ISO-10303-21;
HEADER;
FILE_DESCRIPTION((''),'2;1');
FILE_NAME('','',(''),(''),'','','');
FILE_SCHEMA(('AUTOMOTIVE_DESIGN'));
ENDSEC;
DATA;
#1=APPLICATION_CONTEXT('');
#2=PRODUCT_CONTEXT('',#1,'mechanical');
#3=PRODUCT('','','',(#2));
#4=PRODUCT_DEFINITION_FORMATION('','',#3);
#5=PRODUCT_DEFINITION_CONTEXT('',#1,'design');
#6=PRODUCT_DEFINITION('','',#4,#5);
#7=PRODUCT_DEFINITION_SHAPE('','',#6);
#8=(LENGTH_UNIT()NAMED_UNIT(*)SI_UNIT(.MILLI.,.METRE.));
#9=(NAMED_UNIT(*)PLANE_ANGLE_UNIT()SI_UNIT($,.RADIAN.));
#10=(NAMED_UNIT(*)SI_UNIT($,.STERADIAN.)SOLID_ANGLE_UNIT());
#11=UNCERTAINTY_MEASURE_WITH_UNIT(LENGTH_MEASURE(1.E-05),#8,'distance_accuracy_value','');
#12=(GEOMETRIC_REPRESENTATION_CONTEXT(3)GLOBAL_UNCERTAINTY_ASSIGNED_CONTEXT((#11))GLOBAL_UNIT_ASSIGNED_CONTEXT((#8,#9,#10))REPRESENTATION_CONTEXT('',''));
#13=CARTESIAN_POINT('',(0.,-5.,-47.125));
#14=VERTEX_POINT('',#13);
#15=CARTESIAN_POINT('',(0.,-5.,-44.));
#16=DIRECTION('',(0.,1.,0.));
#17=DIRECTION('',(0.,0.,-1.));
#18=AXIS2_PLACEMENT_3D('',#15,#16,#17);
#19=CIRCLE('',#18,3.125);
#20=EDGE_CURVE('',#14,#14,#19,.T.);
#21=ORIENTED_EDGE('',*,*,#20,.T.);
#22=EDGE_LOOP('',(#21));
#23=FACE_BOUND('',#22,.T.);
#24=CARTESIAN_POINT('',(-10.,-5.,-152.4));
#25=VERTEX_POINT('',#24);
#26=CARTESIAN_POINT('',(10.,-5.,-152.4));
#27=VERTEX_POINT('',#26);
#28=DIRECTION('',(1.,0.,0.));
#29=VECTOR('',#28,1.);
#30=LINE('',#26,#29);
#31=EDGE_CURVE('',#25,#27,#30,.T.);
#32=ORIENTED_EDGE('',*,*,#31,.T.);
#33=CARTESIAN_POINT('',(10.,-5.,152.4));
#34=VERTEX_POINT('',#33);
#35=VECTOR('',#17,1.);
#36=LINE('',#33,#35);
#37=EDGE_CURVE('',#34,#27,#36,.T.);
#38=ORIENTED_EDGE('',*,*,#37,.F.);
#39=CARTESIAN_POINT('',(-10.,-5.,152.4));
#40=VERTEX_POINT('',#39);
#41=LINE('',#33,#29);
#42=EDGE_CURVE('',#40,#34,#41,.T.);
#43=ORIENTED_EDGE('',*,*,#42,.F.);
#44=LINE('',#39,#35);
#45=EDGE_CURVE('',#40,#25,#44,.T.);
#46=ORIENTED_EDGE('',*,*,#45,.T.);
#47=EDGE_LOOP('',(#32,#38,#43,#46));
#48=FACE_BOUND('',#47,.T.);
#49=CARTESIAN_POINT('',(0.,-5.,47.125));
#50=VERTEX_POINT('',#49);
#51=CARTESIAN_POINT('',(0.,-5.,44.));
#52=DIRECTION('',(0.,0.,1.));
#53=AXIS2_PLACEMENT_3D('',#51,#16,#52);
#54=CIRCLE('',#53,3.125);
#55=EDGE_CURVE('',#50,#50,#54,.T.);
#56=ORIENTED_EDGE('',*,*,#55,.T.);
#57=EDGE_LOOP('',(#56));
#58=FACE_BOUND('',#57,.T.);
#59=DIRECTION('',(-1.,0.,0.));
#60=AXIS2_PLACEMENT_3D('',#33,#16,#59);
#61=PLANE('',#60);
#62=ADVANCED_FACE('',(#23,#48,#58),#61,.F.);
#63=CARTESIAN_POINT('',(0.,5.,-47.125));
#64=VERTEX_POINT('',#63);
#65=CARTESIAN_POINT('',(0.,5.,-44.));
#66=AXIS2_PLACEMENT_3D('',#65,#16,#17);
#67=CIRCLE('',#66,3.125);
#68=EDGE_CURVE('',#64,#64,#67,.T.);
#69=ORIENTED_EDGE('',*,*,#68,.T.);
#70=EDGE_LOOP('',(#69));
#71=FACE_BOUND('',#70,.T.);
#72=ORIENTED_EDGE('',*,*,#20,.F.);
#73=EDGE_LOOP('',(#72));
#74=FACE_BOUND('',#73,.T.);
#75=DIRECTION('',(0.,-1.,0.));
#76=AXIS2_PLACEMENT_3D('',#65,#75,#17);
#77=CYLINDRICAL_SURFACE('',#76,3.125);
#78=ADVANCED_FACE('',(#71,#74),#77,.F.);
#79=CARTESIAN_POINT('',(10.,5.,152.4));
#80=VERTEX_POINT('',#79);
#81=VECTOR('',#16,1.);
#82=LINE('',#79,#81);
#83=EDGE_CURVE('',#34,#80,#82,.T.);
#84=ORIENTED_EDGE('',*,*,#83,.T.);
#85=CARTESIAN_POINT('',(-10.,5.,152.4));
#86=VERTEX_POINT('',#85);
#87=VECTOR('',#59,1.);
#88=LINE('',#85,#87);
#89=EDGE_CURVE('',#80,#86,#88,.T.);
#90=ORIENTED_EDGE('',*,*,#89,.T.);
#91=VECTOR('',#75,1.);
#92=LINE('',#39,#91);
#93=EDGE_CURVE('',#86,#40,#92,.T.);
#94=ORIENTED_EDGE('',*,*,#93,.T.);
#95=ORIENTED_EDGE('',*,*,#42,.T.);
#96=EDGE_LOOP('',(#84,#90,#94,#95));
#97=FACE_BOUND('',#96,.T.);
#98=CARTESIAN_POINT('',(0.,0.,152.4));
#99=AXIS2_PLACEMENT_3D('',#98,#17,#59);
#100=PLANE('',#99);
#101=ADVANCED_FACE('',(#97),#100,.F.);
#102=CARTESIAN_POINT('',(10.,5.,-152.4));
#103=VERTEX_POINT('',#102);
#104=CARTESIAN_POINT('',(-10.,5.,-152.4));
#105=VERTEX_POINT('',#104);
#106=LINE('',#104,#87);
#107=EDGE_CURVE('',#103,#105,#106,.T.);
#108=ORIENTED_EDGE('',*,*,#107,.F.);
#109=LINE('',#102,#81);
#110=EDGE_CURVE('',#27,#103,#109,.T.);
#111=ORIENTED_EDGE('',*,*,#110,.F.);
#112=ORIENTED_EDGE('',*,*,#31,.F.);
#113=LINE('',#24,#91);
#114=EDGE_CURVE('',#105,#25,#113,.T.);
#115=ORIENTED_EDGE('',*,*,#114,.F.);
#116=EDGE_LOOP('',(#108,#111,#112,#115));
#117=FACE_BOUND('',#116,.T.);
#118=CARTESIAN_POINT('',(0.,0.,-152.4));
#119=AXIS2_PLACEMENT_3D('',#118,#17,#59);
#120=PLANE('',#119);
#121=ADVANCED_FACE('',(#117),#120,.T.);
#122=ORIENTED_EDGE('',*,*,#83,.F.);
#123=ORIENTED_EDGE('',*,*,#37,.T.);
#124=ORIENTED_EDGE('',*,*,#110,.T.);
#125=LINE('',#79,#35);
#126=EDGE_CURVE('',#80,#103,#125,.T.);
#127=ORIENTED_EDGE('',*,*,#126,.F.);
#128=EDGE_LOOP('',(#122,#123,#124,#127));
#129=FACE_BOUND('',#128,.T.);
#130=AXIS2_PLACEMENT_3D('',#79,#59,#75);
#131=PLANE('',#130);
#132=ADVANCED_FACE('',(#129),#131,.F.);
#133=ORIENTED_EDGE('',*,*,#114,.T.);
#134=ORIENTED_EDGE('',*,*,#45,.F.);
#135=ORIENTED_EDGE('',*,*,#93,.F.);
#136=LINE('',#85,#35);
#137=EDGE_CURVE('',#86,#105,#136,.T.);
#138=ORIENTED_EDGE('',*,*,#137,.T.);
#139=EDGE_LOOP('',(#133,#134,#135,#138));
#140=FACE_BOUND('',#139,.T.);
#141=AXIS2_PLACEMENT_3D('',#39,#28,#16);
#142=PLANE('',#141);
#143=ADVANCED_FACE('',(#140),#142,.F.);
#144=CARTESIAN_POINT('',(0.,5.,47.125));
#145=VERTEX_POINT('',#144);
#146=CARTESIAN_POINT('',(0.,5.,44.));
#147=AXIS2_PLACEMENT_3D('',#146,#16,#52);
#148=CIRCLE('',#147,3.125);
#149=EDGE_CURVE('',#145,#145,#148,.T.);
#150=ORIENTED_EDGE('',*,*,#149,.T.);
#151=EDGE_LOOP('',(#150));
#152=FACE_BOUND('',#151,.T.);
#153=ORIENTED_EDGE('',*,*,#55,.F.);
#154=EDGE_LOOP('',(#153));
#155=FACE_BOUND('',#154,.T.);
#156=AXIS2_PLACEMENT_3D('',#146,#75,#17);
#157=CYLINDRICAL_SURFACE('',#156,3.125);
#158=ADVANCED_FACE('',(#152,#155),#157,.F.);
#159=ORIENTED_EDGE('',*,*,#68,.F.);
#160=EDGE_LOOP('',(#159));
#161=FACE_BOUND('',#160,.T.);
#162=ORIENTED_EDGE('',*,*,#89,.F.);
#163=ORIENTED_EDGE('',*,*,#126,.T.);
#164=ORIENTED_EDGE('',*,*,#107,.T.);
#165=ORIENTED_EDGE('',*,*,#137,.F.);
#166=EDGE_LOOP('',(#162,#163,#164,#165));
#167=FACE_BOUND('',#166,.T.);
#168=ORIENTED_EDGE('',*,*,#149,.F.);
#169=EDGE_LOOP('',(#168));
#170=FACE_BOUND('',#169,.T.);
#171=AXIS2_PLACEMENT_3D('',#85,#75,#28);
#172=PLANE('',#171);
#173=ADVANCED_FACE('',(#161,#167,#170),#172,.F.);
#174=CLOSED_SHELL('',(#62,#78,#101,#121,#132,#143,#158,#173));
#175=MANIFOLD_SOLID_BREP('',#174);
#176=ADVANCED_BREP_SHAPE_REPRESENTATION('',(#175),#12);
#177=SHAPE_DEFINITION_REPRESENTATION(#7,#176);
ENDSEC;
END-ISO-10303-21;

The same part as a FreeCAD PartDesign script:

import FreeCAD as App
import Part
import Sketcher

V = App.Vector


def add_polygon(sketch, points):
    """Adds a closed chain of lines whose ends are joined by coincident constraints."""
    first, n = sketch.GeometryCount, len(points)
    for a, b in zip(points, points[1:] + points[:1]):
        sketch.addGeometry(Part.LineSegment(App.Vector(*a, 0), App.Vector(*b, 0)), False)
    for i in range(n):
        sketch.addConstraint(Sketcher.Constraint("Coincident", first + i, 2, first + (i + 1) % n, 1))

doc = App.newDocument("Part")
body = doc.addObject("PartDesign::Body", "Body")

# Sketch on XY plane
sketch1 = body.newObject("Sketcher::SketchObject", "Sketch")
sketch1.AttachmentSupport = (doc.getObject("XY_Plane"), [""])
sketch1.MapMode = "FlatFace"
add_polygon(sketch1, [(-10, 5), (-10, -5), (10, -5), (10, 5)])  # lines 0-3
sketch1.addConstraint([
    Sketcher.Constraint("Vertical", 0),
    Sketcher.Constraint("Horizontal", 1),
    Sketcher.Constraint("Vertical", 2),
    Sketcher.Constraint("Horizontal", 3),
    Sketcher.Constraint("Symmetric", 0, 2, 2, 2, -1, 1),
    Sketcher.Constraint("DistanceX", 1, 1, 1, 2, 20.0),
    Sketcher.Constraint("DistanceY", 0, 2, 0, 1, 10.0),
])
pad1 = body.newObject("PartDesign::Pad", "Pad")
pad1.Profile = sketch1
pad1.Length = 304.8
pad1.Midplane = True

# Sketch on XZ plane
sketch2 = body.newObject("Sketcher::SketchObject", "Sketch001")
sketch2.AttachmentSupport = (doc.getObject("XZ_Plane"), [""])
sketch2.MapMode = "FlatFace"
sketch2.addGeometry([
    Part.Circle(V(0, 44, 0), V(0, 0, 1), 3.1),
    Part.Circle(V(0, -44, 0), V(0, 0, 1), 3.1),
], False)
sketch2.addConstraint([
    Sketcher.Constraint("Equal", 0, 1),
    Sketcher.Constraint("Symmetric", 0, 3, 1, 3, -1, 1),
    Sketcher.Constraint("PointOnObject", 0, 3, -2),
    Sketcher.Constraint("Diameter", 0, 6.25),
    Sketcher.Constraint("DistanceY", -1, 1, 0, 3, 44.0),
])
pocket1 = body.newObject("PartDesign::Pocket", "Pocket")
pocket1.Profile = sketch2
pocket1.Length = 10
pocket1.Midplane = True

doc.recompute()
